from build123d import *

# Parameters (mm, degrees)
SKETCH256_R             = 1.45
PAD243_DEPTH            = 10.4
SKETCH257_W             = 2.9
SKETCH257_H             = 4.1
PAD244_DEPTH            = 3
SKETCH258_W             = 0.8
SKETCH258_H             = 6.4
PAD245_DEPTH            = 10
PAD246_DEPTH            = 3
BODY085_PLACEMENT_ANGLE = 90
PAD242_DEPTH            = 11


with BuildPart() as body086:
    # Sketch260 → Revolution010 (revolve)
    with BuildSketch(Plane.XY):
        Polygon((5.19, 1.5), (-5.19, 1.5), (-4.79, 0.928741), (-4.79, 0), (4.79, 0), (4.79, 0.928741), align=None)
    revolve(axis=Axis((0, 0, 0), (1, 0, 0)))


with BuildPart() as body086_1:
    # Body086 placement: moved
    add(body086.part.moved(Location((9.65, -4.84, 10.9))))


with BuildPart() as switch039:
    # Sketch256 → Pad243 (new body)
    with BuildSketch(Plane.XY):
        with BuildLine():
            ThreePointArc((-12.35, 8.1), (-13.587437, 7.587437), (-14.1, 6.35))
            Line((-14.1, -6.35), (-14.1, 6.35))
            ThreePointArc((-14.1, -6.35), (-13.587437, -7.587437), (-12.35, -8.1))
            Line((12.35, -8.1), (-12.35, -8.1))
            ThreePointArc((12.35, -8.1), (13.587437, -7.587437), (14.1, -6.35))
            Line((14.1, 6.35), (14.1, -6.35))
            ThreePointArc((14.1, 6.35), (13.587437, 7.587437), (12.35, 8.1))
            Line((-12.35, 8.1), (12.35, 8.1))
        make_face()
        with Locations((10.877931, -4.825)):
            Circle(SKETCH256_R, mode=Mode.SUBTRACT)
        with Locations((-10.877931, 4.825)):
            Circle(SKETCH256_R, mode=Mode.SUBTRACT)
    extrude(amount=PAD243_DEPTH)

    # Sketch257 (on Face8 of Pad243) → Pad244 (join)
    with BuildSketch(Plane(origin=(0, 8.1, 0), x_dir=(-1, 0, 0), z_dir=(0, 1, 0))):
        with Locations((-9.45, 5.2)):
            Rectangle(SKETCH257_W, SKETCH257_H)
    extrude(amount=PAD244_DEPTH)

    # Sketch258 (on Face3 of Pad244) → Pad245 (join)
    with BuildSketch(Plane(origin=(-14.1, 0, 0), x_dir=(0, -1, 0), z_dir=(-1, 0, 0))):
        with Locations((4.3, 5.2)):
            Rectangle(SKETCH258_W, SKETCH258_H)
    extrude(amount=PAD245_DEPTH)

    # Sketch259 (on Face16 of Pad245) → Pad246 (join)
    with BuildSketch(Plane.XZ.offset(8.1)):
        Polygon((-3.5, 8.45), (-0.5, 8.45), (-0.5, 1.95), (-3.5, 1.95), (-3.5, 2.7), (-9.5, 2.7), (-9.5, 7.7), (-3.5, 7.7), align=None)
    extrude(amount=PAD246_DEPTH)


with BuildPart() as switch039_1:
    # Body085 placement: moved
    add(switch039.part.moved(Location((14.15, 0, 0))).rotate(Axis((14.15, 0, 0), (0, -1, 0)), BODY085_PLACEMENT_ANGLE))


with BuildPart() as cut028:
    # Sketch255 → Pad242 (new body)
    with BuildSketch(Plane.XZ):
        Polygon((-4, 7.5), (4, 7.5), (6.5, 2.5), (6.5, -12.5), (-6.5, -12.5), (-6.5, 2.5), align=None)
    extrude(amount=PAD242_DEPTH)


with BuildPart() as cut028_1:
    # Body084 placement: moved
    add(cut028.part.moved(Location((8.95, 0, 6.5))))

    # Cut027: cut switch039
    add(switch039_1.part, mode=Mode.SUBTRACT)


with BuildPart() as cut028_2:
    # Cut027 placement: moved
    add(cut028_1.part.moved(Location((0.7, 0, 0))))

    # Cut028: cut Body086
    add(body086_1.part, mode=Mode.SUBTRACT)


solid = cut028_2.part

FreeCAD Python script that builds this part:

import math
import FreeCAD as App
import Part
import Sketcher
from FreeCAD import Vector
Q = App.Units.Quantity

doc = App.newDocument("Part")
body = doc.addObject("PartDesign::Body", "Body")

# Sketch on XY plane
sketch1 = body.newObject("Sketcher::SketchObject", "Sketch")
sketch1.AttachmentSupport = (doc.getObject("XY_Plane"), [""])
sketch1.MapMode = "FlatFace"
sketch1.addGeometry(Part.LineSegment(Vector(5.2, 1.5, 0), Vector(-5.2, 1.5, 0)), False)
sketch1.addGeometry(Part.LineSegment(Vector(-5.2, 1.5, 0), Vector(-4.8, 0.9, 0)), False)
sketch1.addGeometry(Part.LineSegment(Vector(-4.8, 0.9, 0), Vector(-4.8, 0, 0)), False)
sketch1.addGeometry(Part.LineSegment(Vector(-4.8, 0, 0), Vector(4.8, 0, 0)), False)
sketch1.addGeometry(Part.LineSegment(Vector(4.8, 0, 0), Vector(4.8, 0.9, 0)), False)
sketch1.addGeometry(Part.LineSegment(Vector(4.8, 0.9, 0), Vector(5.2, 1.5, 0)), False)
sketch1.addConstraint(Sketcher.Constraint("Coincident", 0, 2, 1, 1))
sketch1.addConstraint(Sketcher.Constraint("Coincident", 1, 2, 2, 1))
sketch1.addConstraint(Sketcher.Constraint("Coincident", 2, 2, 3, 1))
sketch1.addConstraint(Sketcher.Constraint("Coincident", 3, 2, 4, 1))
sketch1.addConstraint(Sketcher.Constraint("Coincident", 4, 2, 5, 1))
sketch1.addConstraint(Sketcher.Constraint("Coincident", 5, 2, 0, 1))
sketch1.addConstraint(Sketcher.Constraint("Horizontal", 0))
sketch1.addConstraint(Sketcher.Constraint("Vertical", 2))
sketch1.addConstraint(Sketcher.Constraint("Horizontal", 3))
sketch1.addConstraint(Sketcher.Constraint("Vertical", 4))
sketch1.addConstraint(Sketcher.Constraint("Symmetric", 2, 2, 3, 2, -1, 1))
sketch1.addConstraint(Sketcher.Constraint("Horizontal", 1, 2, 4, 2))
sketch1.addConstraint(Sketcher.Constraint("Equal", 1, 5))
sketch1.addConstraint(Sketcher.Constraint("Angle", 1, Q("-54.99999 deg")))
sketch1.addConstraint(Sketcher.Constraint("DistanceX", 0, 2, 0, 1, 10.38))
sketch1.addConstraint(Sketcher.Constraint("DistanceX", 3, 1, 3, 2, 9.58))
sketch1.addConstraint(Sketcher.Constraint("DistanceY", -1, 1, 0, 2, 1.5))
revolution = body.newObject("PartDesign::Revolution", "Revolution")
revolution.Profile = sketch1
revolution.ReferenceAxis = (sketch1, ["H_Axis"])
revolution.Angle = 360
body2 = doc.addObject("PartDesign::Body", "Body001")
doc.recompute()

body.Placement = App.Placement(Vector(9.65, -4.84, 10.9), App.Rotation(Vector(0, 0, 1), 0))
boolean = body2.newObject("PartDesign::Boolean", "Boolean")
boolean.Type = "Fuse"
boolean.addObjects([body])
body3 = doc.addObject("PartDesign::Body", "Body002")

# Sketch on XY plane
sketch2 = body3.newObject("Sketcher::SketchObject", "Sketch001")
sketch2.AttachmentSupport = (doc.getObject("XY_Plane002"), [""])
sketch2.MapMode = "FlatFace"
sketch2.addGeometry(Part.ArcOfCircle(Part.Circle(Vector(-12.4, 6.4, 0), Vector(0, 0, 1), 1.7), math.radians(90), math.radians(180)), False)
sketch2.addGeometry(Part.LineSegment(Vector(-14.1, 6.3, 0), Vector(-14.1, -6.3, 0)), False)
sketch2.addGeometry(Part.ArcOfCircle(Part.Circle(Vector(-12.4, -6.4, 0), Vector(0, 0, 1), 1.7), math.radians(180), math.radians(270)), False)
sketch2.addGeometry(Part.LineSegment(Vector(-12.3, -8.1, 0), Vector(12.3, -8.1, 0)), False)
sketch2.addGeometry(Part.ArcOfCircle(Part.Circle(Vector(12.4, -6.4, 0), Vector(0, 0, 1), 1.7), math.radians(-90), math.radians(0)), False)
sketch2.addGeometry(Part.LineSegment(Vector(14.1, -6.3, 0), Vector(14.1, 6.3, 0)), False)
sketch2.addGeometry(Part.ArcOfCircle(Part.Circle(Vector(12.4, 6.4, 0), Vector(0, 0, 1), 1.7), math.radians(0), math.radians(90)), False)
sketch2.addGeometry(Part.LineSegment(Vector(12.3, 8.1, 0), Vector(-12.3, 8.1, 0)), False)
sketch2.addGeometry(Part.Circle(Vector(10.9, -4.8, 0), Vector(0, 0, 1), 1.4), False)
sketch2.addGeometry(Part.Circle(Vector(-10.9, 4.8, 0), Vector(0, 0, 1), 1.4), False)
sketch2.addConstraint(Sketcher.Constraint("Tangent", 0, 2, 1, 1))
sketch2.addConstraint(Sketcher.Constraint("Tangent", 1, 2, 2, 1))
sketch2.addConstraint(Sketcher.Constraint("Tangent", 2, 2, 3, 1))
sketch2.addConstraint(Sketcher.Constraint("Tangent", 3, 2, 4, 1))
sketch2.addConstraint(Sketcher.Constraint("Tangent", 4, 2, 5, 1))
sketch2.addConstraint(Sketcher.Constraint("Tangent", 5, 2, 6, 1))
sketch2.addConstraint(Sketcher.Constraint("Tangent", 6, 2, 7, 1))
sketch2.addConstraint(Sketcher.Constraint("Tangent", 7, 2, 0, 1))
sketch2.addConstraint(Sketcher.Constraint("Vertical", 1))
sketch2.addConstraint(Sketcher.Constraint("Horizontal", 3))
sketch2.addConstraint(Sketcher.Constraint("Vertical", 5))
sketch2.addConstraint(Sketcher.Constraint("Horizontal", 7))
sketch2.addConstraint(Sketcher.Constraint("Equal", 0, 2))
sketch2.addConstraint(Sketcher.Constraint("Equal", 2, 4))
sketch2.addConstraint(Sketcher.Constraint("Equal", 4, 6))
sketch2.addConstraint(Sketcher.Constraint("Equal", 8, 9))
sketch2.addConstraint(Sketcher.Constraint("Symmetric", 0, 3, 4, 3, -1, 1))
sketch2.addConstraint(Sketcher.Constraint("Symmetric", 8, 3, 9, 3, -1, 1))
sketch2.addConstraint(Sketcher.Constraint("Diameter", 8, 2.9))
sketch2.addConstraint(Sketcher.Constraint("Radius", 0, 1.75))
sketch2.addConstraint(Sketcher.Constraint("DistanceX", 3, 1, 3, 2, 24.7))
sketch2.addConstraint(Sketcher.Constraint("DistanceY", 1, 2, 1, 1, 12.7))
sketch2.addConstraint(Sketcher.Constraint("DistanceY", 8, 3, 9, 3, 9.65))
sketch2.addConstraint(Sketcher.Constraint("DistanceX", -1, 1, 8, 3, 10.877931))
pad1 = body3.newObject("PartDesign::Pad", "Pad")
pad1.Profile = sketch2
pad1.Length = 10.4

# Sketch on XZ plane
sketch3 = body3.newObject("Sketcher::SketchObject", "Sketch002")
sketch3.AttachmentSupport = (doc.getObject("XZ_Plane002"), [""])
sketch3.MapMode = "FlatFace"
sketch3.AttachmentOffset = App.Placement(Vector(0, 0, -8.1), App.Rotation())
sketch3.addGeometry(Part.LineSegment(Vector(10.9, 7.2, 0), Vector(10.9, 3.1, 0)), False)
sketch3.addGeometry(Part.LineSegment(Vector(10.9, 3.1, 0), Vector(8, 3.1, 0)), False)
sketch3.addGeometry(Part.LineSegment(Vector(8, 3.1, 0), Vector(8, 7.2, 0)), False)
sketch3.addGeometry(Part.LineSegment(Vector(8, 7.2, 0), Vector(10.9, 7.2, 0)), False)
sketch3.addConstraint(Sketcher.Constraint("Coincident", 0, 2, 1, 1))
sketch3.addConstraint(Sketcher.Constraint("Coincident", 1, 2, 2, 1))
sketch3.addConstraint(Sketcher.Constraint("Coincident", 2, 2, 3, 1))
sketch3.addConstraint(Sketcher.Constraint("Coincident", 3, 2, 0, 1))
sketch3.addConstraint(Sketcher.Constraint("Vertical", 0))
sketch3.addConstraint(Sketcher.Constraint("Horizontal", 1))
sketch3.addConstraint(Sketcher.Constraint("Vertical", 2))
sketch3.addConstraint(Sketcher.Constraint("Horizontal", 3))
sketch3.addConstraint(Sketcher.Constraint("DistanceX", 1, 2, 1, 1, 2.9))
sketch3.addConstraint(Sketcher.Constraint("DistanceY", 0, 2, 0, 1, 4.1))
sketch3.addConstraint(Sketcher.Constraint("DistanceX", -1, 1, 1, 2, 8.0))
sketch3.addConstraint(Sketcher.Constraint("DistanceY", -1, 1, 0, 2, 3.15))
pad2 = body3.newObject("PartDesign::Pad", "Pad001")
pad2.Profile = sketch3
pad2.Length = 3
pad2.Reversed = True

# Sketch on YZ plane
sketch4 = body3.newObject("Sketcher::SketchObject", "Sketch003")
sketch4.AttachmentSupport = (doc.getObject("YZ_Plane002"), [""])
sketch4.MapMode = "FlatFace"
sketch4.AttachmentOffset = App.Placement(Vector(0, 0, -14.1), App.Rotation())
sketch4.addGeometry(Part.LineSegment(Vector(-3.9, 8.4, 0), Vector(-3.9, 2, 0)), False)
sketch4.addGeometry(Part.LineSegment(Vector(-3.9, 2, 0), Vector(-4.7, 2, 0)), False)
sketch4.addGeometry(Part.LineSegment(Vector(-4.7, 2, 0), Vector(-4.7, 8.4, 0)), False)
sketch4.addGeometry(Part.LineSegment(Vector(-4.7, 8.4, 0), Vector(-3.9, 8.4, 0)), False)
sketch4.addConstraint(Sketcher.Constraint("Coincident", 0, 2, 1, 1))
sketch4.addConstraint(Sketcher.Constraint("Coincident", 1, 2, 2, 1))
sketch4.addConstraint(Sketcher.Constraint("Coincident", 2, 2, 3, 1))
sketch4.addConstraint(Sketcher.Constraint("Coincident", 3, 2, 0, 1))
sketch4.addConstraint(Sketcher.Constraint("Vertical", 0))
sketch4.addConstraint(Sketcher.Constraint("Horizontal", 1))
sketch4.addConstraint(Sketcher.Constraint("Vertical", 2))
sketch4.addConstraint(Sketcher.Constraint("Horizontal", 3))
sketch4.addConstraint(Sketcher.Constraint("DistanceX", 1, 2, 1, 1, 0.8))
sketch4.addConstraint(Sketcher.Constraint("DistanceY", 0, 2, 0, 1, 6.4))
sketch4.addConstraint(Sketcher.Constraint("DistanceY", -1, 1, 0, 2, 2.0))
sketch4.addConstraint(Sketcher.Constraint("DistanceX", 0, 2, -1, 1, 3.9))
pad3 = body3.newObject("PartDesign::Pad", "Pad002")
pad3.Profile = sketch4
pad3.Length = 10
pad3.Reversed = True

# Sketch on XZ plane
sketch5 = body3.newObject("Sketcher::SketchObject", "Sketch004")
sketch5.AttachmentSupport = (doc.getObject("XZ_Plane002"), [""])
sketch5.MapMode = "FlatFace"
sketch5.AttachmentOffset = App.Placement(Vector(0, 0, 8.1), App.Rotation())
sketch5.addGeometry(Part.LineSegment(Vector(-0.5, 8.4, 0), Vector(-3.5, 8.4, 0)), False)
sketch5.addGeometry(Part.LineSegment(Vector(-3.5, 8.4, 0), Vector(-3.5, 7.7, 0)), False)
sketch5.addGeometry(Part.LineSegment(Vector(-3.5, 7.7, 0), Vector(-9.5, 7.7, 0)), False)
sketch5.addGeometry(Part.LineSegment(Vector(-9.5, 7.7, 0), Vector(-9.5, 2.7, 0)), False)
sketch5.addGeometry(Part.LineSegment(Vector(-9.5, 2.7, 0), Vector(-3.5, 2.7, 0)), False)
sketch5.addGeometry(Part.LineSegment(Vector(-3.5, 2.7, 0), Vector(-3.5, 1.9, 0)), False)
sketch5.addGeometry(Part.LineSegment(Vector(-3.5, 1.9, 0), Vector(-0.5, 1.9, 0)), False)
sketch5.addGeometry(Part.LineSegment(Vector(-0.5, 1.9, 0), Vector(-0.5, 8.4, 0)), False)
sketch5.addConstraint(Sketcher.Constraint("Coincident", 0, 2, 1, 1))
sketch5.addConstraint(Sketcher.Constraint("Coincident", 1, 2, 2, 1))
sketch5.addConstraint(Sketcher.Constraint("Coincident", 2, 2, 3, 1))
sketch5.addConstraint(Sketcher.Constraint("Coincident", 3, 2, 4, 1))
sketch5.addConstraint(Sketcher.Constraint("Coincident", 4, 2, 5, 1))
sketch5.addConstraint(Sketcher.Constraint("Coincident", 5, 2, 6, 1))
sketch5.addConstraint(Sketcher.Constraint("Coincident", 6, 2, 7, 1))
sketch5.addConstraint(Sketcher.Constraint("Coincident", 7, 2, 0, 1))
sketch5.addConstraint(Sketcher.Constraint("Horizontal", 0))
sketch5.addConstraint(Sketcher.Constraint("Vertical", 1))
sketch5.addConstraint(Sketcher.Constraint("Horizontal", 2))
sketch5.addConstraint(Sketcher.Constraint("Vertical", 3))
sketch5.addConstraint(Sketcher.Constraint("Horizontal", 4))
sketch5.addConstraint(Sketcher.Constraint("Vertical", 5))
sketch5.addConstraint(Sketcher.Constraint("Horizontal", 6))
sketch5.addConstraint(Sketcher.Constraint("Vertical", 7))
sketch5.addConstraint(Sketcher.Constraint("Vertical", 1, 2, 4, 2))
sketch5.addConstraint(Sketcher.Constraint("Equal", 1, 5))
sketch5.addConstraint(Sketcher.Constraint("DistanceX", 0, 2, 0, 1, 3.0))
sketch5.addConstraint(Sketcher.Constraint("DistanceX", 2, 2, 2, 1, 6.0))
sketch5.addConstraint(Sketcher.Constraint("DistanceY", 3, 2, 3, 1, 5.0))
sketch5.addConstraint(Sketcher.Constraint("DistanceY", 7, 1, 7, 2, 6.5))
sketch5.addConstraint(Sketcher.Constraint("DistanceX", 0, 2, -1, 1, 3.5))
sketch5.addConstraint(Sketcher.Constraint("DistanceY", -1, 1, 1, 2, 7.7))
pad4 = body3.newObject("PartDesign::Pad", "Pad003")
pad4.Profile = sketch5
pad4.Length = 3
body4 = doc.addObject("PartDesign::Body", "Body003")
doc.recompute()

body3.Placement = App.Placement(Vector(14.15, 0, 0), App.Rotation(Vector(0, -1, 0), 90))
boolean2 = body4.newObject("PartDesign::Boolean", "Boolean001")
boolean2.Type = "Fuse"
boolean2.addObjects([body3])
body5 = doc.addObject("PartDesign::Body", "Body004")

# Sketch on XZ plane
sketch6 = body5.newObject("Sketcher::SketchObject", "Sketch005")
sketch6.AttachmentSupport = (doc.getObject("XZ_Plane004"), [""])
sketch6.MapMode = "FlatFace"
sketch6.addGeometry(Part.LineSegment(Vector(4, 8, 0), Vector(-4, 8, 0)), False)
sketch6.addGeometry(Part.LineSegment(Vector(-4, 8, 0), Vector(-6, 2, 0)), False)
sketch6.addGeometry(Part.LineSegment(Vector(-6, 2, 0), Vector(-6, -12, 0)), False)
sketch6.addGeometry(Part.LineSegment(Vector(-6, -12, 0), Vector(6, -12, 0)), False)
sketch6.addGeometry(Part.LineSegment(Vector(6, -12, 0), Vector(6, 2, 0)), False)
sketch6.addGeometry(Part.LineSegment(Vector(6, 2, 0), Vector(4, 8, 0)), False)
sketch6.addConstraint(Sketcher.Constraint("Coincident", 0, 2, 1, 1))
sketch6.addConstraint(Sketcher.Constraint("Coincident", 1, 2, 2, 1))
sketch6.addConstraint(Sketcher.Constraint("Coincident", 2, 2, 3, 1))
sketch6.addConstraint(Sketcher.Constraint("Coincident", 3, 2, 4, 1))
sketch6.addConstraint(Sketcher.Constraint("Coincident", 4, 2, 5, 1))
sketch6.addConstraint(Sketcher.Constraint("Coincident", 5, 2, 0, 1))
sketch6.addConstraint(Sketcher.Constraint("Horizontal", 0))
sketch6.addConstraint(Sketcher.Constraint("Vertical", 2))
sketch6.addConstraint(Sketcher.Constraint("Horizontal", 3))
sketch6.addConstraint(Sketcher.Constraint("Vertical", 4))
sketch6.addConstraint(Sketcher.Constraint("Symmetric", 1, 2, 4, 2, -2))
sketch6.addConstraint(Sketcher.Constraint("Equal", 1, 5))
sketch6.addConstraint(Sketcher.Constraint("DistanceX", 0, 2, 0, 1, 8.0))
sketch6.addConstraint(Sketcher.Constraint("DistanceX", 3, 1, 3, 2, 13.0))
sketch6.addConstraint(Sketcher.Constraint("DistanceY", 2, 2, 2, 1, 15.0))
sketch6.addConstraint(Sketcher.Constraint("DistanceY", 1, 2, 0, 2, 5.0))
sketch6.addConstraint(Sketcher.Constraint("DistanceY", -1, 1, 0, 2, 7.5))
pad5 = body5.newObject("PartDesign::Pad", "Pad004")
pad5.Profile = sketch6
pad5.Length = 11
body6 = doc.addObject("PartDesign::Body", "Body005")
doc.recompute()

body5.Placement = App.Placement(Vector(8.95, 0, 6.5), App.Rotation(Vector(0, 0, 1), 0))
boolean3 = body6.newObject("PartDesign::Boolean", "Boolean002")
boolean3.Type = "Fuse"
boolean3.addObjects([body5])
doc.recompute()

boolean4 = body6.newObject("PartDesign::Boolean", "Boolean003")
boolean4.Type = "Cut"
boolean4.addObjects([body4])
body7 = doc.addObject("PartDesign::Body", "Body006")
doc.recompute()

body6.Placement = App.Placement(Vector(0.7, 0, 0), App.Rotation(Vector(0, 0, 1), 0))
boolean5 = body7.newObject("PartDesign::Boolean", "Boolean004")
boolean5.Type = "Fuse"
boolean5.addObjects([body6])
doc.recompute()

boolean6 = body7.newObject("PartDesign::Boolean", "Boolean005")
boolean6.Type = "Cut"
boolean6.addObjects([body2])

doc.recompute()
